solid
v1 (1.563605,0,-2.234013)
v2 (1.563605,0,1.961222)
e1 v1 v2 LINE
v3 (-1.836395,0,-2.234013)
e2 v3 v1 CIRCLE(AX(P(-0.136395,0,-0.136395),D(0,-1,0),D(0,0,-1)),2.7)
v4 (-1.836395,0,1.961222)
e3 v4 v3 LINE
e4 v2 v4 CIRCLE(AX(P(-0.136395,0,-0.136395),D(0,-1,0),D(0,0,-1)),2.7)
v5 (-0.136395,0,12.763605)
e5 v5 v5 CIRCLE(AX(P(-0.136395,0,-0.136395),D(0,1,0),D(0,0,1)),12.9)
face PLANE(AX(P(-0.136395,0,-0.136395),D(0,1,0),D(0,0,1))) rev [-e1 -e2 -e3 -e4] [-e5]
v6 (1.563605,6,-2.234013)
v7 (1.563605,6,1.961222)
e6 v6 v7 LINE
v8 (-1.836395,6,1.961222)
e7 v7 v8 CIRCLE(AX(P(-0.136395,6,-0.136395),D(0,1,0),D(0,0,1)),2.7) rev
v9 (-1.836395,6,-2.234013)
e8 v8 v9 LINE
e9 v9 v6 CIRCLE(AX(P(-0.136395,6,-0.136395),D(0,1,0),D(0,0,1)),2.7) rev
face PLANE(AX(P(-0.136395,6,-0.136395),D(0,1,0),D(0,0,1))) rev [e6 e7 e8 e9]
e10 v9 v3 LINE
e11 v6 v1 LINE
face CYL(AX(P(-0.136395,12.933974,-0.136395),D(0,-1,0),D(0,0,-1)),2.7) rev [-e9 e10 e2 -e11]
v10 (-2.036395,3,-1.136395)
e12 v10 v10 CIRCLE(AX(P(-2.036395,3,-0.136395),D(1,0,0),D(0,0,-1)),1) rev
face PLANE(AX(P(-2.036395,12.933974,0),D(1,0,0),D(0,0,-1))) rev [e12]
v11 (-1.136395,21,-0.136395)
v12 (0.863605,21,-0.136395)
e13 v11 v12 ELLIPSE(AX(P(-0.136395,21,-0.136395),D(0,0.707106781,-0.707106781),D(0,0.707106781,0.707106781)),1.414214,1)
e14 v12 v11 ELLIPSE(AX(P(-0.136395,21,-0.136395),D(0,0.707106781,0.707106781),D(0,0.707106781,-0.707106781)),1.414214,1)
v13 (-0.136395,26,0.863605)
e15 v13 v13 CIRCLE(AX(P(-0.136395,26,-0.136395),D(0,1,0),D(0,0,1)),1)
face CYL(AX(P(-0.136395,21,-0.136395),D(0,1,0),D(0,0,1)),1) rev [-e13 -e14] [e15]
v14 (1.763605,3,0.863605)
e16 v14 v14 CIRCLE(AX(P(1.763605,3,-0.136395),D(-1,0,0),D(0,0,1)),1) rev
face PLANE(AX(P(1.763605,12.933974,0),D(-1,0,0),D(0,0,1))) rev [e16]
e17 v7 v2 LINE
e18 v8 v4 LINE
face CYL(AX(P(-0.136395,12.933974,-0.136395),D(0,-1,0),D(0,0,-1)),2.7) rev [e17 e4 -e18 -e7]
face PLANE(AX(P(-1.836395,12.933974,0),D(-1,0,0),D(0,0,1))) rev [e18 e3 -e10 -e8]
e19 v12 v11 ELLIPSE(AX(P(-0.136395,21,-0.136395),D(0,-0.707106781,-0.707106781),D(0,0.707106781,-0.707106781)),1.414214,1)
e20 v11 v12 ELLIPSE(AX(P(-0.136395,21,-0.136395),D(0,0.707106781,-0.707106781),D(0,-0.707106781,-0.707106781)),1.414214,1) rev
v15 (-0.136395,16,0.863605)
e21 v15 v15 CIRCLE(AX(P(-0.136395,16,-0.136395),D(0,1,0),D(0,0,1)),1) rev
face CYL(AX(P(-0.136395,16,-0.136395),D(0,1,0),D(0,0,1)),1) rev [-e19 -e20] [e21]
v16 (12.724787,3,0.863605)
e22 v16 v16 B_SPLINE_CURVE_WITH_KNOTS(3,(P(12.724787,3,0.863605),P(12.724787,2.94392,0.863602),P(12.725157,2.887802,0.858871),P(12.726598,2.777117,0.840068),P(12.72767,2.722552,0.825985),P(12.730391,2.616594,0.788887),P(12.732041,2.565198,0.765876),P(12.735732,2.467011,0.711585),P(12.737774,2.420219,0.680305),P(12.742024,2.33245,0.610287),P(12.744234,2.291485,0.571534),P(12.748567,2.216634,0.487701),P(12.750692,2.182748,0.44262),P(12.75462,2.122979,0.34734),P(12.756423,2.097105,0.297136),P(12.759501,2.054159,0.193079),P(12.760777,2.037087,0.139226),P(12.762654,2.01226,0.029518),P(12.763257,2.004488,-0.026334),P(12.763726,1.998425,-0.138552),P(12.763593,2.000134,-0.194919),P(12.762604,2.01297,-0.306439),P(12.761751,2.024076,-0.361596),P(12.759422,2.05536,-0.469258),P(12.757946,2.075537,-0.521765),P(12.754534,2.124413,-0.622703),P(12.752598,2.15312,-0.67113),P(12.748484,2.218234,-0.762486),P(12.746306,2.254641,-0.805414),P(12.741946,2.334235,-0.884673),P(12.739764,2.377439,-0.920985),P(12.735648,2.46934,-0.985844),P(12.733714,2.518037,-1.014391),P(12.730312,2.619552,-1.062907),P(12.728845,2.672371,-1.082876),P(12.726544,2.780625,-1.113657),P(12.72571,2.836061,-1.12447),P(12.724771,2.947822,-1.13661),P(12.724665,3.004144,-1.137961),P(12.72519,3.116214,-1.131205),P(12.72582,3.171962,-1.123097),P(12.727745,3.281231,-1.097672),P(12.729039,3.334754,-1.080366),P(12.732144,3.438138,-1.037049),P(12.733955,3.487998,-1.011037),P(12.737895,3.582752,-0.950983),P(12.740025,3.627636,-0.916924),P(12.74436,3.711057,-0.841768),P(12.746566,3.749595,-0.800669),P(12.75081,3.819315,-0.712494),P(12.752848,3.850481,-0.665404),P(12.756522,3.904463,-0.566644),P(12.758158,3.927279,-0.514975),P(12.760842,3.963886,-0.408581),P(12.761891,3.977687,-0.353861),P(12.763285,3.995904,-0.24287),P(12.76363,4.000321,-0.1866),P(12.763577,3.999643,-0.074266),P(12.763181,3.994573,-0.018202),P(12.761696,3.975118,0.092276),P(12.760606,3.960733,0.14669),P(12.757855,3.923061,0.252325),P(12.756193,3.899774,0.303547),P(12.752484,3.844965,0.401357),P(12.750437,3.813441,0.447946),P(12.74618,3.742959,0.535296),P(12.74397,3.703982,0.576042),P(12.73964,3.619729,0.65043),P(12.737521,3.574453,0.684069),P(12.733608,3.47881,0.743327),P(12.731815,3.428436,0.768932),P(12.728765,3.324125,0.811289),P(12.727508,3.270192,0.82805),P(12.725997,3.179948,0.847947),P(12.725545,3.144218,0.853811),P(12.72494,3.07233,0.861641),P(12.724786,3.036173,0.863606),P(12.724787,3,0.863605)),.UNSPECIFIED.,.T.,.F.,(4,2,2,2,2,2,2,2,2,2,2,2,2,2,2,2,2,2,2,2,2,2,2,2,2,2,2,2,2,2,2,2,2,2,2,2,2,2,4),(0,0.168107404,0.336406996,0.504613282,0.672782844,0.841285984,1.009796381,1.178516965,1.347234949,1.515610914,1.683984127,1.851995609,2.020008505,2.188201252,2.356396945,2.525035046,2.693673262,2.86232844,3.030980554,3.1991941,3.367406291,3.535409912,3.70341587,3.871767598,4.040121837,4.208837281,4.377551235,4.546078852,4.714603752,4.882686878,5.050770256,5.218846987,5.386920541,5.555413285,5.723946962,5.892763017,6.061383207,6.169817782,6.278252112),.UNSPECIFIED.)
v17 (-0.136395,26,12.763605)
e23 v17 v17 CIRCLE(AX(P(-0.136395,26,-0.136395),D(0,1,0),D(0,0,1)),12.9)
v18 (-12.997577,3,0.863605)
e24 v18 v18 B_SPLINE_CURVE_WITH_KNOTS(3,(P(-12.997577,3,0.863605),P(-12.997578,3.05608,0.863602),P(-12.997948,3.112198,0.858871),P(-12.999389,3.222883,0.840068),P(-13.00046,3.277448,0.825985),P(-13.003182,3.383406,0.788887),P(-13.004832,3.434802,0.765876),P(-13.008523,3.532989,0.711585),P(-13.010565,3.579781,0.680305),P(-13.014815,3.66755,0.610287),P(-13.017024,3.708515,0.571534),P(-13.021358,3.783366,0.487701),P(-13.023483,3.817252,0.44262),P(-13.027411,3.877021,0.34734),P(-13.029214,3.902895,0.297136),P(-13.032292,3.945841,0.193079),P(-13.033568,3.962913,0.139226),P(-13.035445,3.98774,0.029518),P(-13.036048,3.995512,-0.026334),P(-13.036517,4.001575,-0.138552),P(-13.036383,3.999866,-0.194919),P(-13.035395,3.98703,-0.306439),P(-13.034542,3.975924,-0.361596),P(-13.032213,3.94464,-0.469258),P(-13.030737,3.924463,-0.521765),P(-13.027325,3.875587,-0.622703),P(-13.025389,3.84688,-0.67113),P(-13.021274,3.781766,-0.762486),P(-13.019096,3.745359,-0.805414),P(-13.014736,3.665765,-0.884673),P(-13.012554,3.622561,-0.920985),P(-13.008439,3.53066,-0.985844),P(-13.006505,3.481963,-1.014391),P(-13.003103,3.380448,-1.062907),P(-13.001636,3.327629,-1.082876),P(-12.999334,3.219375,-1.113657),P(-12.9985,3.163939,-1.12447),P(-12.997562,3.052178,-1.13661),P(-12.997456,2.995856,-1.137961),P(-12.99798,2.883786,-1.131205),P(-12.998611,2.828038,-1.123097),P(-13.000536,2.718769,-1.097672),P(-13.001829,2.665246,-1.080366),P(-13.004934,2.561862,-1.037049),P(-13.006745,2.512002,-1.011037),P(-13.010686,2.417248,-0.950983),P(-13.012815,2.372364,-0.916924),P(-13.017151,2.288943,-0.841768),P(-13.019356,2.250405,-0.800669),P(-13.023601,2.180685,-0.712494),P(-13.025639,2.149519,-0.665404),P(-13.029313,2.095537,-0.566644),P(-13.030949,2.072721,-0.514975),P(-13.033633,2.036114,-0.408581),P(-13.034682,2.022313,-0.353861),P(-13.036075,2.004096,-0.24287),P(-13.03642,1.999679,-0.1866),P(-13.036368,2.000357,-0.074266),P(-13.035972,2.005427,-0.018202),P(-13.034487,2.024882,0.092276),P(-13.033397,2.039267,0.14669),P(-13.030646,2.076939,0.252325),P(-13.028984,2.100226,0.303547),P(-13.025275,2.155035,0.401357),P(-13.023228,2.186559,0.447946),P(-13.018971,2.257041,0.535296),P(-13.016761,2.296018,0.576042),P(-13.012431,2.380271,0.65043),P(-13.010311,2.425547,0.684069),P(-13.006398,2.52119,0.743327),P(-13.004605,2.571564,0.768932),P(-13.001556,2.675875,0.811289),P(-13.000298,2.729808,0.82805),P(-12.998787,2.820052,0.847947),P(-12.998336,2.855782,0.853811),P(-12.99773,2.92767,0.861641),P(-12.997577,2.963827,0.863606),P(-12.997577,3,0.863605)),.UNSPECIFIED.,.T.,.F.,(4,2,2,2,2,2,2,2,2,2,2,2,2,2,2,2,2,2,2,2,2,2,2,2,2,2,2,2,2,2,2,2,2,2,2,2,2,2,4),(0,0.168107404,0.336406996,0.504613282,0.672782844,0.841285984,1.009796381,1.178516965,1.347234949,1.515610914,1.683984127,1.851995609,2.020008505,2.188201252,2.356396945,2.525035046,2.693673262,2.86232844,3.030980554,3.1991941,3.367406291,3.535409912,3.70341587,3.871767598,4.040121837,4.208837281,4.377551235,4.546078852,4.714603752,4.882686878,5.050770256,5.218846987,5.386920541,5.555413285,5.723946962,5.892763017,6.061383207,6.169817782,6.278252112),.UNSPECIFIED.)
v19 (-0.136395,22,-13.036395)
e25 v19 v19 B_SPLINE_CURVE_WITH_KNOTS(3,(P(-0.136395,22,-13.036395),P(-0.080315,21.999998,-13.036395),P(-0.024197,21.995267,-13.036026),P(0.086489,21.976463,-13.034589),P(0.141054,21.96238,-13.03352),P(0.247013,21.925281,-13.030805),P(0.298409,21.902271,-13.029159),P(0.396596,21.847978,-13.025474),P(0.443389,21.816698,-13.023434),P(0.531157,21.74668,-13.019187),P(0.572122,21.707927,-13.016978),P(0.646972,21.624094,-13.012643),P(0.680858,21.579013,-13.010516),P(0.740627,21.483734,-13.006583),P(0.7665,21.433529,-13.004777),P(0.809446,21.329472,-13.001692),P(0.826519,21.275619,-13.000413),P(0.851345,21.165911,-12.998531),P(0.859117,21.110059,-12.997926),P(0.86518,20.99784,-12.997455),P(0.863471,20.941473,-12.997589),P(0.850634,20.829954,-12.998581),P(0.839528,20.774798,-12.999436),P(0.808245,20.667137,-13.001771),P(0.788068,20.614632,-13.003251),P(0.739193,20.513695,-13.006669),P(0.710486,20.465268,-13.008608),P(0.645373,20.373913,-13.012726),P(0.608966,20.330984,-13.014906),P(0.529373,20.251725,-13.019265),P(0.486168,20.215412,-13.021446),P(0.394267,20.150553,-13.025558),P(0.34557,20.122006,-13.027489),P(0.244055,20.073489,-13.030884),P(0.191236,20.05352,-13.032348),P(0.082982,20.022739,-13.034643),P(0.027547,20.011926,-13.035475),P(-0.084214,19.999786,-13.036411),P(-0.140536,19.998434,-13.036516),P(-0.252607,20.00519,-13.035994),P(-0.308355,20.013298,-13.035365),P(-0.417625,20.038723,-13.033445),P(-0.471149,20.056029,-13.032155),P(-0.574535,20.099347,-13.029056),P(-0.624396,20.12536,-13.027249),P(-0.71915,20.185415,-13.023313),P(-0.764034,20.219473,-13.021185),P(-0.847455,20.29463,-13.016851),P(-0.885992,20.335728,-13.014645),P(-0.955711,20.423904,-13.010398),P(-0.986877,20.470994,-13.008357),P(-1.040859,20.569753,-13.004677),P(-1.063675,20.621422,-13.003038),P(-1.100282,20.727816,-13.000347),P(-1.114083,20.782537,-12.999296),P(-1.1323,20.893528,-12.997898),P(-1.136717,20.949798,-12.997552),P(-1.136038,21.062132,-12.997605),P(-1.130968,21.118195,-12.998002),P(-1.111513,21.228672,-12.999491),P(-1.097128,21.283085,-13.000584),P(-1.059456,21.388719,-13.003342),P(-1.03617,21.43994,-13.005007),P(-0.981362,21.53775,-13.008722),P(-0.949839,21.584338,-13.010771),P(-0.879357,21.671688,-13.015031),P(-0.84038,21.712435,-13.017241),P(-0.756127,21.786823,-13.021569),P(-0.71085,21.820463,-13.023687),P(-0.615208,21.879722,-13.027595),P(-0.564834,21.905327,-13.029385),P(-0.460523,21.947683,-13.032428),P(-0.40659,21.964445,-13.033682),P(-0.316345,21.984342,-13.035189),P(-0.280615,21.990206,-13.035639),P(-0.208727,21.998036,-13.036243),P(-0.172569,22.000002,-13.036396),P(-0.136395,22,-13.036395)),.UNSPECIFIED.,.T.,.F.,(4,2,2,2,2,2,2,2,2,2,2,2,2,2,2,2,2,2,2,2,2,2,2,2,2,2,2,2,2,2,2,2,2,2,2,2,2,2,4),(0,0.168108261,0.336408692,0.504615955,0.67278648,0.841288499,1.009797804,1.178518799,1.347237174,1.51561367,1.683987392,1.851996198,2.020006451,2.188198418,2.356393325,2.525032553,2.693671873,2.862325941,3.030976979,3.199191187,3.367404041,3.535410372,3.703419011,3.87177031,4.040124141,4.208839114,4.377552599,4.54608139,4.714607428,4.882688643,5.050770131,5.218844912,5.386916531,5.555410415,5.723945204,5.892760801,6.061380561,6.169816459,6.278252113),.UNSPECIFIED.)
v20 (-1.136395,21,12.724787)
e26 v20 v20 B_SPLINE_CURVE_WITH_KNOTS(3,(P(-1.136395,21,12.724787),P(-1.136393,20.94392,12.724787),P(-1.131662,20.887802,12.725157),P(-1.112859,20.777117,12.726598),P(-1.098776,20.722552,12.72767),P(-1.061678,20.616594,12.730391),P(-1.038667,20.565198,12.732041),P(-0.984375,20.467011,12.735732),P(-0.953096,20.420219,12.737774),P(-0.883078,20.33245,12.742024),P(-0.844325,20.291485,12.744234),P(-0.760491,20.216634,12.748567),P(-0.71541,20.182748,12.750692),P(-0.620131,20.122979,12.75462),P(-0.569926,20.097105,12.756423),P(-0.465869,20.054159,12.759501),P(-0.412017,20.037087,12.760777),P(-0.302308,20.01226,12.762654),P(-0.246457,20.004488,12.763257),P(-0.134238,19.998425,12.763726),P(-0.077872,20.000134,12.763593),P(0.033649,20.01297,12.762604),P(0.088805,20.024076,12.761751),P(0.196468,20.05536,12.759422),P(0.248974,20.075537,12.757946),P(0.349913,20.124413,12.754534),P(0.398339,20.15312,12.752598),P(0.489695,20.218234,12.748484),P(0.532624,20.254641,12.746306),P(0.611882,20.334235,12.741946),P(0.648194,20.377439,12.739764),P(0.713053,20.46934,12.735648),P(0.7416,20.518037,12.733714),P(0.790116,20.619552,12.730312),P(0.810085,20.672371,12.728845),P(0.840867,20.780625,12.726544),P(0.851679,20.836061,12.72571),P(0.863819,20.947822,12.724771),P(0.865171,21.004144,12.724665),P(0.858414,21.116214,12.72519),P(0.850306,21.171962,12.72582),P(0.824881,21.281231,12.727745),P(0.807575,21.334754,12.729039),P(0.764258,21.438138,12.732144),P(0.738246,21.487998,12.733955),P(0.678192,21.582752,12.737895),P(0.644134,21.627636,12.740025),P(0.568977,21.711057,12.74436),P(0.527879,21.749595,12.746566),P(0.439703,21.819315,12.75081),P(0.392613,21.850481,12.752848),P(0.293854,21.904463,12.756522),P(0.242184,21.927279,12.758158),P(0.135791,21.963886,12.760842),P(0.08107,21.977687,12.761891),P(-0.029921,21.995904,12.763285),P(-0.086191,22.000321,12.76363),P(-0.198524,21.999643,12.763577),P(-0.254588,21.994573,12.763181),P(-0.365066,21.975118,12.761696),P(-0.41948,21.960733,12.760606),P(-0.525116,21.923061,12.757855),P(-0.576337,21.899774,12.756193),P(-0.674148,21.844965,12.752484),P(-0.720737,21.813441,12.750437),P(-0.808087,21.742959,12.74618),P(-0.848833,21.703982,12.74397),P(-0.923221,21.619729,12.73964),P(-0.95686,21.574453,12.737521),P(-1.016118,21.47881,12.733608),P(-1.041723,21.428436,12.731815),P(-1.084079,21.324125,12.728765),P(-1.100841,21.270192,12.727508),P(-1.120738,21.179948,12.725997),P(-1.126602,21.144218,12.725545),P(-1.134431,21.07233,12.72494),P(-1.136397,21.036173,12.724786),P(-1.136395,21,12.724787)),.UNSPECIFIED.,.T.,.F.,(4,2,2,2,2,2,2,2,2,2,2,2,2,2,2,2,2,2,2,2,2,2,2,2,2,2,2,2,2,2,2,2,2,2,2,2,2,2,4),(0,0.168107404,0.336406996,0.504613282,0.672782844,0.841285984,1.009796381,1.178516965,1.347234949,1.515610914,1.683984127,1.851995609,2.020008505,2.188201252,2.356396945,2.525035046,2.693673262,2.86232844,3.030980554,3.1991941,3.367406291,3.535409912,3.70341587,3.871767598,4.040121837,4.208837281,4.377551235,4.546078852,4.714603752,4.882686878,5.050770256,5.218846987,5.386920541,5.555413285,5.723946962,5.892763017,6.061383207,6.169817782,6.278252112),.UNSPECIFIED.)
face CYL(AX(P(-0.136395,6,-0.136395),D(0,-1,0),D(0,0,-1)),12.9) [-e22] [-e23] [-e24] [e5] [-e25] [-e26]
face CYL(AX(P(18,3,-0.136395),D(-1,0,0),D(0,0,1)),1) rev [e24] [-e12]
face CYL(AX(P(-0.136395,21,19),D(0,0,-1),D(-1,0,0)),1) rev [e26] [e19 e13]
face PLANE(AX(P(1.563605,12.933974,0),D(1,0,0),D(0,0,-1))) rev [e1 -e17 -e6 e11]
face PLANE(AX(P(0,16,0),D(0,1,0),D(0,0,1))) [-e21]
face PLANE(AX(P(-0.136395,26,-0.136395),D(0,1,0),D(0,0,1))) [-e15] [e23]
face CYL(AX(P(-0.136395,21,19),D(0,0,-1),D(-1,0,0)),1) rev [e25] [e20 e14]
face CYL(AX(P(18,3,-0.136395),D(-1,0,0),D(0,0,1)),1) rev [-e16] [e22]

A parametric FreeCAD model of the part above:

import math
import FreeCAD as App
import Part
import Sketcher

doc = App.newDocument("Part")
body = doc.addObject("PartDesign::Body", "Body")

# Sketch on XZ plane
sketch1 = body.newObject("Sketcher::SketchObject", "Sketch")
sketch1.AttachmentSupport = (doc.getObject("XZ_Plane"), [""])
sketch1.MapMode = "FlatFace"
sketch1.addGeometry([
    Part.Circle(App.Vector(-0.136395, -0.136395, 0), App.Vector(0, 0, 1), 12.9),  # 0
    Part.ArcOfCircle(Part.Circle(App.Vector(-0.136395, -0.136395, 0), App.Vector(0, 0, 1), 2.9), math.radians(90), math.radians(130.932725)),  # 1
    Part.LineSegment(App.Vector(-2.036395, 2.054495, 0), App.Vector(-2.036395, -2.327286, 0)),  # 2
    Part.ArcOfCircle(Part.Circle(App.Vector(-0.136395, -0.136395, 0), App.Vector(0, 0, 1), 2.9), math.radians(-130.932725), math.radians(-90)),  # 3
    Part.ArcOfCircle(Part.Circle(App.Vector(-0.136395, -0.136395, 0), App.Vector(0, 0, 1), 2.9), math.radians(-90), math.radians(-49.067275)),  # 4
    Part.LineSegment(App.Vector(1.763605, -2.327286, 0), App.Vector(1.763605, 2.054495, 0)),  # 5
    Part.ArcOfCircle(Part.Circle(App.Vector(-0.136395, -0.136395, 0), App.Vector(0, 0, 1), 2.9), math.radians(49.067275), math.radians(90)),  # 6
], False)
sketch1.addConstraint([
    Sketcher.Constraint("Coincident", 1, 2, 2, 1),
    Sketcher.Constraint("Coincident", 2, 2, 3, 1),
    Sketcher.Constraint("Tangent", 3, 2, 4, 1),
    Sketcher.Constraint("Coincident", 4, 2, 5, 1),
    Sketcher.Constraint("Coincident", 5, 2, 6, 1),
    Sketcher.Constraint("Tangent", 6, 2, 1, 1),
    Sketcher.Constraint("Vertical", 2),
    Sketcher.Constraint("Vertical", 5),
    Sketcher.Constraint("Coincident", 1, 3, 0, 3),
    Sketcher.Constraint("Coincident", 3, 3, 0, 3),
    Sketcher.Constraint("Equal", 1, 3),
    Sketcher.Constraint("Equal", 3, 4),
    Sketcher.Constraint("Equal", 4, 6),
    Sketcher.Constraint("Horizontal", 2, 2, 4, 2),
    Sketcher.Constraint("Vertical", 6, 3, 3, 2),
    Sketcher.Constraint("Vertical", 3, 2, 6, 2),
    Sketcher.Constraint("Diameter", 0, 25.8),
    Sketcher.Constraint("Radius", 1, 2.9),
    Sketcher.Constraint("DistanceX", 1, 2, 0, 3, 1.9),
    Sketcher.Constraint("DistanceX", 0, 3, -1, 1, 0.136395),
    Sketcher.Constraint("DistanceY", 0, 3, -1, 1, 0.136395),
])
pad1 = body.newObject("PartDesign::Pad", "Pad")
pad1.Profile = sketch1
pad1.Length = 6
pad1.Reversed = True

# Sketch on XZ plane
sketch2 = body.newObject("Sketcher::SketchObject", "Sketch001")
sketch2.AttachmentSupport = (doc.getObject("XZ_Plane"), [""])
sketch2.MapMode = "FlatFace"
sketch2.AttachmentOffset = App.Placement(App.Vector(0, 0, -6), App.Rotation())
sketch2.addGeometry(Part.Circle(App.Vector(-0.136395, -0.136395, 0), App.Vector(0, 0, 1), 12.9), False)
sketch2.addConstraint([
    Sketcher.Constraint("Diameter", 0, 25.8),
    Sketcher.Constraint("DistanceX", 0, 3, -1, 1, 0.136395),
    Sketcher.Constraint("DistanceY", 0, 3, -1, 1, 0.136395),
])
pad2 = body.newObject("PartDesign::Pad", "Pad001")
pad2.Profile = sketch2
pad2.Length = 20
pad2.Reversed = True

# Sketch on XZ plane
sketch3 = body.newObject("Sketcher::SketchObject", "Sketch002")
sketch3.AttachmentSupport = (doc.getObject("XZ_Plane"), [""])
sketch3.MapMode = "FlatFace"
sketch3.AttachmentOffset = App.Placement(App.Vector(0, 0, -26), App.Rotation())
sketch3.addGeometry(Part.Circle(App.Vector(-0.136395, -0.136395, 0), App.Vector(0, 0, 1), 1), False)
sketch3.addConstraint([
    Sketcher.Constraint("Diameter", 0, 2.0),
    Sketcher.Constraint("DistanceX", 0, 3, -1, 1, 0.136395),
    Sketcher.Constraint("DistanceY", 0, 3, -1, 1, 0.136395),
])
pocket1 = body.newObject("PartDesign::Pocket", "Pocket")
pocket1.Profile = sketch3
pocket1.Length = 5
pocket1.Reversed = True

# Sketch on YZ plane
sketch4 = body.newObject("Sketcher::SketchObject", "Sketch003")
sketch4.AttachmentSupport = (doc.getObject("YZ_Plane"), [""])
sketch4.MapMode = "FlatFace"
sketch4.addGeometry(Part.Circle(App.Vector(3, -0.136395, 0), App.Vector(0, 0, 1), 1), False)
sketch4.addConstraint([
    Sketcher.Constraint("Diameter", 0, 2.0),
    Sketcher.Constraint("DistanceX", -1, 1, 0, 3, 3.0),
    Sketcher.Constraint("DistanceY", 0, 3, -1, 1, 0.136395),
])
pocket2 = body.newObject("PartDesign::Pocket", "Pocket001")
pocket2.Profile = sketch4
pocket2.Type = "ThroughAll"
pocket2.Midplane = True

# Sketch on XY plane
sketch5 = body.newObject("Sketcher::SketchObject", "Sketch004")
sketch5.AttachmentSupport = (doc.getObject("XY_Plane"), [""])
sketch5.MapMode = "FlatFace"
sketch5.addGeometry(Part.Circle(App.Vector(-0.136395, 21, 0), App.Vector(0, 0, 1), 1), False)
sketch5.addConstraint([
    Sketcher.Constraint("Diameter", 0, 2.0),
    Sketcher.Constraint("DistanceY", -1, 1, 0, 3, 21.0),
    Sketcher.Constraint("DistanceX", 0, 3, -1, 1, 0.136395),
])
pocket3 = body.newObject("PartDesign::Pocket", "Pocket002")
pocket3.Profile = sketch5
pocket3.Type = "ThroughAll"
pocket3.Midplane = True

# Sketch on XZ plane
sketch6 = body.newObject("Sketcher::SketchObject", "Sketch005")
sketch6.AttachmentSupport = (doc.getObject("XZ_Plane"), [""])
sketch6.MapMode = "FlatFace"
sketch6.addGeometry([
    Part.ArcOfCircle(Part.Circle(App.Vector(-0.136395, -0.136395, 0), App.Vector(0, 0, 1), 2.9), math.radians(49.067275), math.radians(130.932725)),  # 0
    Part.LineSegment(App.Vector(-2.036395, 2.054495, 0), App.Vector(-2.036395, -2.327286, 0)),  # 1
    Part.ArcOfCircle(Part.Circle(App.Vector(-0.136395, -0.136395, 0), App.Vector(0, 0, 1), 2.9), math.radians(-130.932725), math.radians(-49.067275)),  # 2
    Part.LineSegment(App.Vector(1.763605, -2.327286, 0), App.Vector(1.763605, 2.054495, 0)),  # 3
    Part.ArcOfCircle(Part.Circle(App.Vector(-0.136395, -0.136395, 0), App.Vector(0, 0, 1), 2.7), math.radians(50.977197), math.radians(90)),  # 4
    Part.LineSegment(App.Vector(1.563605, 1.961222, 0), App.Vector(1.563605, -2.234013, 0)),  # 5
    Part.ArcOfCircle(Part.Circle(App.Vector(-0.136395, -0.136395, 0), App.Vector(0, 0, 1), 2.7), math.radians(-90), math.radians(-50.977197)),  # 6
    Part.ArcOfCircle(Part.Circle(App.Vector(-0.136395, -0.136395, 0), App.Vector(0, 0, 1), 2.7), math.radians(-129.022803), math.radians(-90)),  # 7
    Part.LineSegment(App.Vector(-1.836395, -2.234013, 0), App.Vector(-1.836395, 1.961222, 0)),  # 8
    Part.ArcOfCircle(Part.Circle(App.Vector(-0.136395, -0.136395, 0), App.Vector(0, 0, 1), 2.7), math.radians(90), math.radians(129.022803)),  # 9
], False)
sketch6.addConstraint([
    Sketcher.Constraint("Coincident", 0, 2, 1, 1),
    Sketcher.Constraint("Coincident", 1, 2, 2, 1),
    Sketcher.Constraint("Coincident", 2, 2, 3, 1),
    Sketcher.Constraint("Coincident", 3, 2, 0, 1),
    Sketcher.Constraint("Coincident", 4, 1, 5, 1),
    Sketcher.Constraint("Coincident", 5, 2, 6, 2),
    Sketcher.Constraint("Tangent", 6, 1, 7, 2),
    Sketcher.Constraint("Coincident", 7, 1, 8, 1),
    Sketcher.Constraint("Coincident", 8, 2, 9, 2),
    Sketcher.Constraint("Tangent", 9, 1, 4, 2),
    Sketcher.Constraint("Vertical", 1),
    Sketcher.Constraint("Vertical", 3),
    Sketcher.Constraint("Vertical", 5),
    Sketcher.Constraint("Vertical", 8),
    Sketcher.Constraint("Coincident", 2, 3, 0, 3),
    Sketcher.Constraint("Coincident", 4, 3, 0, 3),
    Sketcher.Constraint("Coincident", 6, 3, 0, 3),
    Sketcher.Constraint("Equal", 0, 2),
    Sketcher.Constraint("Equal", 4, 6),
    Sketcher.Constraint("Equal", 6, 7),
    Sketcher.Constraint("Equal", 7, 9),
    Sketcher.Constraint("Horizontal", 1, 2, 2, 2),
    Sketcher.Constraint("Horizontal", 5, 2, 7, 1),
    Sketcher.Constraint("Vertical", 9, 3, 6, 1),
    Sketcher.Constraint("Vertical", 6, 1, 9, 1),
    Sketcher.Constraint("Radius", 0, 2.9),
    Sketcher.Constraint("Radius", 4, 2.7),
    Sketcher.Constraint("DistanceX", 0, 2, 4, 3, 1.9),
    Sketcher.Constraint("DistanceX", 4, 1, 3, 2, 0.2),
    Sketcher.Constraint("DistanceX", 0, 3, -1, 1, 0.136395),
    Sketcher.Constraint("DistanceY", 0, 3, -1, 1, 0.136395),
])
pad3 = body.newObject("PartDesign::Pad", "Pad002")
pad3.Profile = sketch6
pad3.Length = 6
pad3.Reversed = True

# Sketch on XZ plane
sketch7 = body.newObject("Sketcher::SketchObject", "Sketch006")
sketch7.AttachmentSupport = (doc.getObject("XZ_Plane"), [""])
sketch7.MapMode = "FlatFace"
sketch7.AttachmentOffset = App.Placement(App.Vector(0, 0, -26), App.Rotation())
sketch7.addGeometry(Part.Circle(App.Vector(-0.136395, -0.136395, 0), App.Vector(0, 0, 1), 1), False)
sketch7.addConstraint([
    Sketcher.Constraint("Diameter", 0, 2.0),
    Sketcher.Constraint("DistanceX", 0, 3, -1, 1, 0.136395),
    Sketcher.Constraint("DistanceY", 0, 3, -1, 1, 0.136395),
])
pocket4 = body.newObject("PartDesign::Pocket", "Pocket003")
pocket4.Profile = sketch7
pocket4.Length = 10
pocket4.Reversed = True

doc.recompute()
